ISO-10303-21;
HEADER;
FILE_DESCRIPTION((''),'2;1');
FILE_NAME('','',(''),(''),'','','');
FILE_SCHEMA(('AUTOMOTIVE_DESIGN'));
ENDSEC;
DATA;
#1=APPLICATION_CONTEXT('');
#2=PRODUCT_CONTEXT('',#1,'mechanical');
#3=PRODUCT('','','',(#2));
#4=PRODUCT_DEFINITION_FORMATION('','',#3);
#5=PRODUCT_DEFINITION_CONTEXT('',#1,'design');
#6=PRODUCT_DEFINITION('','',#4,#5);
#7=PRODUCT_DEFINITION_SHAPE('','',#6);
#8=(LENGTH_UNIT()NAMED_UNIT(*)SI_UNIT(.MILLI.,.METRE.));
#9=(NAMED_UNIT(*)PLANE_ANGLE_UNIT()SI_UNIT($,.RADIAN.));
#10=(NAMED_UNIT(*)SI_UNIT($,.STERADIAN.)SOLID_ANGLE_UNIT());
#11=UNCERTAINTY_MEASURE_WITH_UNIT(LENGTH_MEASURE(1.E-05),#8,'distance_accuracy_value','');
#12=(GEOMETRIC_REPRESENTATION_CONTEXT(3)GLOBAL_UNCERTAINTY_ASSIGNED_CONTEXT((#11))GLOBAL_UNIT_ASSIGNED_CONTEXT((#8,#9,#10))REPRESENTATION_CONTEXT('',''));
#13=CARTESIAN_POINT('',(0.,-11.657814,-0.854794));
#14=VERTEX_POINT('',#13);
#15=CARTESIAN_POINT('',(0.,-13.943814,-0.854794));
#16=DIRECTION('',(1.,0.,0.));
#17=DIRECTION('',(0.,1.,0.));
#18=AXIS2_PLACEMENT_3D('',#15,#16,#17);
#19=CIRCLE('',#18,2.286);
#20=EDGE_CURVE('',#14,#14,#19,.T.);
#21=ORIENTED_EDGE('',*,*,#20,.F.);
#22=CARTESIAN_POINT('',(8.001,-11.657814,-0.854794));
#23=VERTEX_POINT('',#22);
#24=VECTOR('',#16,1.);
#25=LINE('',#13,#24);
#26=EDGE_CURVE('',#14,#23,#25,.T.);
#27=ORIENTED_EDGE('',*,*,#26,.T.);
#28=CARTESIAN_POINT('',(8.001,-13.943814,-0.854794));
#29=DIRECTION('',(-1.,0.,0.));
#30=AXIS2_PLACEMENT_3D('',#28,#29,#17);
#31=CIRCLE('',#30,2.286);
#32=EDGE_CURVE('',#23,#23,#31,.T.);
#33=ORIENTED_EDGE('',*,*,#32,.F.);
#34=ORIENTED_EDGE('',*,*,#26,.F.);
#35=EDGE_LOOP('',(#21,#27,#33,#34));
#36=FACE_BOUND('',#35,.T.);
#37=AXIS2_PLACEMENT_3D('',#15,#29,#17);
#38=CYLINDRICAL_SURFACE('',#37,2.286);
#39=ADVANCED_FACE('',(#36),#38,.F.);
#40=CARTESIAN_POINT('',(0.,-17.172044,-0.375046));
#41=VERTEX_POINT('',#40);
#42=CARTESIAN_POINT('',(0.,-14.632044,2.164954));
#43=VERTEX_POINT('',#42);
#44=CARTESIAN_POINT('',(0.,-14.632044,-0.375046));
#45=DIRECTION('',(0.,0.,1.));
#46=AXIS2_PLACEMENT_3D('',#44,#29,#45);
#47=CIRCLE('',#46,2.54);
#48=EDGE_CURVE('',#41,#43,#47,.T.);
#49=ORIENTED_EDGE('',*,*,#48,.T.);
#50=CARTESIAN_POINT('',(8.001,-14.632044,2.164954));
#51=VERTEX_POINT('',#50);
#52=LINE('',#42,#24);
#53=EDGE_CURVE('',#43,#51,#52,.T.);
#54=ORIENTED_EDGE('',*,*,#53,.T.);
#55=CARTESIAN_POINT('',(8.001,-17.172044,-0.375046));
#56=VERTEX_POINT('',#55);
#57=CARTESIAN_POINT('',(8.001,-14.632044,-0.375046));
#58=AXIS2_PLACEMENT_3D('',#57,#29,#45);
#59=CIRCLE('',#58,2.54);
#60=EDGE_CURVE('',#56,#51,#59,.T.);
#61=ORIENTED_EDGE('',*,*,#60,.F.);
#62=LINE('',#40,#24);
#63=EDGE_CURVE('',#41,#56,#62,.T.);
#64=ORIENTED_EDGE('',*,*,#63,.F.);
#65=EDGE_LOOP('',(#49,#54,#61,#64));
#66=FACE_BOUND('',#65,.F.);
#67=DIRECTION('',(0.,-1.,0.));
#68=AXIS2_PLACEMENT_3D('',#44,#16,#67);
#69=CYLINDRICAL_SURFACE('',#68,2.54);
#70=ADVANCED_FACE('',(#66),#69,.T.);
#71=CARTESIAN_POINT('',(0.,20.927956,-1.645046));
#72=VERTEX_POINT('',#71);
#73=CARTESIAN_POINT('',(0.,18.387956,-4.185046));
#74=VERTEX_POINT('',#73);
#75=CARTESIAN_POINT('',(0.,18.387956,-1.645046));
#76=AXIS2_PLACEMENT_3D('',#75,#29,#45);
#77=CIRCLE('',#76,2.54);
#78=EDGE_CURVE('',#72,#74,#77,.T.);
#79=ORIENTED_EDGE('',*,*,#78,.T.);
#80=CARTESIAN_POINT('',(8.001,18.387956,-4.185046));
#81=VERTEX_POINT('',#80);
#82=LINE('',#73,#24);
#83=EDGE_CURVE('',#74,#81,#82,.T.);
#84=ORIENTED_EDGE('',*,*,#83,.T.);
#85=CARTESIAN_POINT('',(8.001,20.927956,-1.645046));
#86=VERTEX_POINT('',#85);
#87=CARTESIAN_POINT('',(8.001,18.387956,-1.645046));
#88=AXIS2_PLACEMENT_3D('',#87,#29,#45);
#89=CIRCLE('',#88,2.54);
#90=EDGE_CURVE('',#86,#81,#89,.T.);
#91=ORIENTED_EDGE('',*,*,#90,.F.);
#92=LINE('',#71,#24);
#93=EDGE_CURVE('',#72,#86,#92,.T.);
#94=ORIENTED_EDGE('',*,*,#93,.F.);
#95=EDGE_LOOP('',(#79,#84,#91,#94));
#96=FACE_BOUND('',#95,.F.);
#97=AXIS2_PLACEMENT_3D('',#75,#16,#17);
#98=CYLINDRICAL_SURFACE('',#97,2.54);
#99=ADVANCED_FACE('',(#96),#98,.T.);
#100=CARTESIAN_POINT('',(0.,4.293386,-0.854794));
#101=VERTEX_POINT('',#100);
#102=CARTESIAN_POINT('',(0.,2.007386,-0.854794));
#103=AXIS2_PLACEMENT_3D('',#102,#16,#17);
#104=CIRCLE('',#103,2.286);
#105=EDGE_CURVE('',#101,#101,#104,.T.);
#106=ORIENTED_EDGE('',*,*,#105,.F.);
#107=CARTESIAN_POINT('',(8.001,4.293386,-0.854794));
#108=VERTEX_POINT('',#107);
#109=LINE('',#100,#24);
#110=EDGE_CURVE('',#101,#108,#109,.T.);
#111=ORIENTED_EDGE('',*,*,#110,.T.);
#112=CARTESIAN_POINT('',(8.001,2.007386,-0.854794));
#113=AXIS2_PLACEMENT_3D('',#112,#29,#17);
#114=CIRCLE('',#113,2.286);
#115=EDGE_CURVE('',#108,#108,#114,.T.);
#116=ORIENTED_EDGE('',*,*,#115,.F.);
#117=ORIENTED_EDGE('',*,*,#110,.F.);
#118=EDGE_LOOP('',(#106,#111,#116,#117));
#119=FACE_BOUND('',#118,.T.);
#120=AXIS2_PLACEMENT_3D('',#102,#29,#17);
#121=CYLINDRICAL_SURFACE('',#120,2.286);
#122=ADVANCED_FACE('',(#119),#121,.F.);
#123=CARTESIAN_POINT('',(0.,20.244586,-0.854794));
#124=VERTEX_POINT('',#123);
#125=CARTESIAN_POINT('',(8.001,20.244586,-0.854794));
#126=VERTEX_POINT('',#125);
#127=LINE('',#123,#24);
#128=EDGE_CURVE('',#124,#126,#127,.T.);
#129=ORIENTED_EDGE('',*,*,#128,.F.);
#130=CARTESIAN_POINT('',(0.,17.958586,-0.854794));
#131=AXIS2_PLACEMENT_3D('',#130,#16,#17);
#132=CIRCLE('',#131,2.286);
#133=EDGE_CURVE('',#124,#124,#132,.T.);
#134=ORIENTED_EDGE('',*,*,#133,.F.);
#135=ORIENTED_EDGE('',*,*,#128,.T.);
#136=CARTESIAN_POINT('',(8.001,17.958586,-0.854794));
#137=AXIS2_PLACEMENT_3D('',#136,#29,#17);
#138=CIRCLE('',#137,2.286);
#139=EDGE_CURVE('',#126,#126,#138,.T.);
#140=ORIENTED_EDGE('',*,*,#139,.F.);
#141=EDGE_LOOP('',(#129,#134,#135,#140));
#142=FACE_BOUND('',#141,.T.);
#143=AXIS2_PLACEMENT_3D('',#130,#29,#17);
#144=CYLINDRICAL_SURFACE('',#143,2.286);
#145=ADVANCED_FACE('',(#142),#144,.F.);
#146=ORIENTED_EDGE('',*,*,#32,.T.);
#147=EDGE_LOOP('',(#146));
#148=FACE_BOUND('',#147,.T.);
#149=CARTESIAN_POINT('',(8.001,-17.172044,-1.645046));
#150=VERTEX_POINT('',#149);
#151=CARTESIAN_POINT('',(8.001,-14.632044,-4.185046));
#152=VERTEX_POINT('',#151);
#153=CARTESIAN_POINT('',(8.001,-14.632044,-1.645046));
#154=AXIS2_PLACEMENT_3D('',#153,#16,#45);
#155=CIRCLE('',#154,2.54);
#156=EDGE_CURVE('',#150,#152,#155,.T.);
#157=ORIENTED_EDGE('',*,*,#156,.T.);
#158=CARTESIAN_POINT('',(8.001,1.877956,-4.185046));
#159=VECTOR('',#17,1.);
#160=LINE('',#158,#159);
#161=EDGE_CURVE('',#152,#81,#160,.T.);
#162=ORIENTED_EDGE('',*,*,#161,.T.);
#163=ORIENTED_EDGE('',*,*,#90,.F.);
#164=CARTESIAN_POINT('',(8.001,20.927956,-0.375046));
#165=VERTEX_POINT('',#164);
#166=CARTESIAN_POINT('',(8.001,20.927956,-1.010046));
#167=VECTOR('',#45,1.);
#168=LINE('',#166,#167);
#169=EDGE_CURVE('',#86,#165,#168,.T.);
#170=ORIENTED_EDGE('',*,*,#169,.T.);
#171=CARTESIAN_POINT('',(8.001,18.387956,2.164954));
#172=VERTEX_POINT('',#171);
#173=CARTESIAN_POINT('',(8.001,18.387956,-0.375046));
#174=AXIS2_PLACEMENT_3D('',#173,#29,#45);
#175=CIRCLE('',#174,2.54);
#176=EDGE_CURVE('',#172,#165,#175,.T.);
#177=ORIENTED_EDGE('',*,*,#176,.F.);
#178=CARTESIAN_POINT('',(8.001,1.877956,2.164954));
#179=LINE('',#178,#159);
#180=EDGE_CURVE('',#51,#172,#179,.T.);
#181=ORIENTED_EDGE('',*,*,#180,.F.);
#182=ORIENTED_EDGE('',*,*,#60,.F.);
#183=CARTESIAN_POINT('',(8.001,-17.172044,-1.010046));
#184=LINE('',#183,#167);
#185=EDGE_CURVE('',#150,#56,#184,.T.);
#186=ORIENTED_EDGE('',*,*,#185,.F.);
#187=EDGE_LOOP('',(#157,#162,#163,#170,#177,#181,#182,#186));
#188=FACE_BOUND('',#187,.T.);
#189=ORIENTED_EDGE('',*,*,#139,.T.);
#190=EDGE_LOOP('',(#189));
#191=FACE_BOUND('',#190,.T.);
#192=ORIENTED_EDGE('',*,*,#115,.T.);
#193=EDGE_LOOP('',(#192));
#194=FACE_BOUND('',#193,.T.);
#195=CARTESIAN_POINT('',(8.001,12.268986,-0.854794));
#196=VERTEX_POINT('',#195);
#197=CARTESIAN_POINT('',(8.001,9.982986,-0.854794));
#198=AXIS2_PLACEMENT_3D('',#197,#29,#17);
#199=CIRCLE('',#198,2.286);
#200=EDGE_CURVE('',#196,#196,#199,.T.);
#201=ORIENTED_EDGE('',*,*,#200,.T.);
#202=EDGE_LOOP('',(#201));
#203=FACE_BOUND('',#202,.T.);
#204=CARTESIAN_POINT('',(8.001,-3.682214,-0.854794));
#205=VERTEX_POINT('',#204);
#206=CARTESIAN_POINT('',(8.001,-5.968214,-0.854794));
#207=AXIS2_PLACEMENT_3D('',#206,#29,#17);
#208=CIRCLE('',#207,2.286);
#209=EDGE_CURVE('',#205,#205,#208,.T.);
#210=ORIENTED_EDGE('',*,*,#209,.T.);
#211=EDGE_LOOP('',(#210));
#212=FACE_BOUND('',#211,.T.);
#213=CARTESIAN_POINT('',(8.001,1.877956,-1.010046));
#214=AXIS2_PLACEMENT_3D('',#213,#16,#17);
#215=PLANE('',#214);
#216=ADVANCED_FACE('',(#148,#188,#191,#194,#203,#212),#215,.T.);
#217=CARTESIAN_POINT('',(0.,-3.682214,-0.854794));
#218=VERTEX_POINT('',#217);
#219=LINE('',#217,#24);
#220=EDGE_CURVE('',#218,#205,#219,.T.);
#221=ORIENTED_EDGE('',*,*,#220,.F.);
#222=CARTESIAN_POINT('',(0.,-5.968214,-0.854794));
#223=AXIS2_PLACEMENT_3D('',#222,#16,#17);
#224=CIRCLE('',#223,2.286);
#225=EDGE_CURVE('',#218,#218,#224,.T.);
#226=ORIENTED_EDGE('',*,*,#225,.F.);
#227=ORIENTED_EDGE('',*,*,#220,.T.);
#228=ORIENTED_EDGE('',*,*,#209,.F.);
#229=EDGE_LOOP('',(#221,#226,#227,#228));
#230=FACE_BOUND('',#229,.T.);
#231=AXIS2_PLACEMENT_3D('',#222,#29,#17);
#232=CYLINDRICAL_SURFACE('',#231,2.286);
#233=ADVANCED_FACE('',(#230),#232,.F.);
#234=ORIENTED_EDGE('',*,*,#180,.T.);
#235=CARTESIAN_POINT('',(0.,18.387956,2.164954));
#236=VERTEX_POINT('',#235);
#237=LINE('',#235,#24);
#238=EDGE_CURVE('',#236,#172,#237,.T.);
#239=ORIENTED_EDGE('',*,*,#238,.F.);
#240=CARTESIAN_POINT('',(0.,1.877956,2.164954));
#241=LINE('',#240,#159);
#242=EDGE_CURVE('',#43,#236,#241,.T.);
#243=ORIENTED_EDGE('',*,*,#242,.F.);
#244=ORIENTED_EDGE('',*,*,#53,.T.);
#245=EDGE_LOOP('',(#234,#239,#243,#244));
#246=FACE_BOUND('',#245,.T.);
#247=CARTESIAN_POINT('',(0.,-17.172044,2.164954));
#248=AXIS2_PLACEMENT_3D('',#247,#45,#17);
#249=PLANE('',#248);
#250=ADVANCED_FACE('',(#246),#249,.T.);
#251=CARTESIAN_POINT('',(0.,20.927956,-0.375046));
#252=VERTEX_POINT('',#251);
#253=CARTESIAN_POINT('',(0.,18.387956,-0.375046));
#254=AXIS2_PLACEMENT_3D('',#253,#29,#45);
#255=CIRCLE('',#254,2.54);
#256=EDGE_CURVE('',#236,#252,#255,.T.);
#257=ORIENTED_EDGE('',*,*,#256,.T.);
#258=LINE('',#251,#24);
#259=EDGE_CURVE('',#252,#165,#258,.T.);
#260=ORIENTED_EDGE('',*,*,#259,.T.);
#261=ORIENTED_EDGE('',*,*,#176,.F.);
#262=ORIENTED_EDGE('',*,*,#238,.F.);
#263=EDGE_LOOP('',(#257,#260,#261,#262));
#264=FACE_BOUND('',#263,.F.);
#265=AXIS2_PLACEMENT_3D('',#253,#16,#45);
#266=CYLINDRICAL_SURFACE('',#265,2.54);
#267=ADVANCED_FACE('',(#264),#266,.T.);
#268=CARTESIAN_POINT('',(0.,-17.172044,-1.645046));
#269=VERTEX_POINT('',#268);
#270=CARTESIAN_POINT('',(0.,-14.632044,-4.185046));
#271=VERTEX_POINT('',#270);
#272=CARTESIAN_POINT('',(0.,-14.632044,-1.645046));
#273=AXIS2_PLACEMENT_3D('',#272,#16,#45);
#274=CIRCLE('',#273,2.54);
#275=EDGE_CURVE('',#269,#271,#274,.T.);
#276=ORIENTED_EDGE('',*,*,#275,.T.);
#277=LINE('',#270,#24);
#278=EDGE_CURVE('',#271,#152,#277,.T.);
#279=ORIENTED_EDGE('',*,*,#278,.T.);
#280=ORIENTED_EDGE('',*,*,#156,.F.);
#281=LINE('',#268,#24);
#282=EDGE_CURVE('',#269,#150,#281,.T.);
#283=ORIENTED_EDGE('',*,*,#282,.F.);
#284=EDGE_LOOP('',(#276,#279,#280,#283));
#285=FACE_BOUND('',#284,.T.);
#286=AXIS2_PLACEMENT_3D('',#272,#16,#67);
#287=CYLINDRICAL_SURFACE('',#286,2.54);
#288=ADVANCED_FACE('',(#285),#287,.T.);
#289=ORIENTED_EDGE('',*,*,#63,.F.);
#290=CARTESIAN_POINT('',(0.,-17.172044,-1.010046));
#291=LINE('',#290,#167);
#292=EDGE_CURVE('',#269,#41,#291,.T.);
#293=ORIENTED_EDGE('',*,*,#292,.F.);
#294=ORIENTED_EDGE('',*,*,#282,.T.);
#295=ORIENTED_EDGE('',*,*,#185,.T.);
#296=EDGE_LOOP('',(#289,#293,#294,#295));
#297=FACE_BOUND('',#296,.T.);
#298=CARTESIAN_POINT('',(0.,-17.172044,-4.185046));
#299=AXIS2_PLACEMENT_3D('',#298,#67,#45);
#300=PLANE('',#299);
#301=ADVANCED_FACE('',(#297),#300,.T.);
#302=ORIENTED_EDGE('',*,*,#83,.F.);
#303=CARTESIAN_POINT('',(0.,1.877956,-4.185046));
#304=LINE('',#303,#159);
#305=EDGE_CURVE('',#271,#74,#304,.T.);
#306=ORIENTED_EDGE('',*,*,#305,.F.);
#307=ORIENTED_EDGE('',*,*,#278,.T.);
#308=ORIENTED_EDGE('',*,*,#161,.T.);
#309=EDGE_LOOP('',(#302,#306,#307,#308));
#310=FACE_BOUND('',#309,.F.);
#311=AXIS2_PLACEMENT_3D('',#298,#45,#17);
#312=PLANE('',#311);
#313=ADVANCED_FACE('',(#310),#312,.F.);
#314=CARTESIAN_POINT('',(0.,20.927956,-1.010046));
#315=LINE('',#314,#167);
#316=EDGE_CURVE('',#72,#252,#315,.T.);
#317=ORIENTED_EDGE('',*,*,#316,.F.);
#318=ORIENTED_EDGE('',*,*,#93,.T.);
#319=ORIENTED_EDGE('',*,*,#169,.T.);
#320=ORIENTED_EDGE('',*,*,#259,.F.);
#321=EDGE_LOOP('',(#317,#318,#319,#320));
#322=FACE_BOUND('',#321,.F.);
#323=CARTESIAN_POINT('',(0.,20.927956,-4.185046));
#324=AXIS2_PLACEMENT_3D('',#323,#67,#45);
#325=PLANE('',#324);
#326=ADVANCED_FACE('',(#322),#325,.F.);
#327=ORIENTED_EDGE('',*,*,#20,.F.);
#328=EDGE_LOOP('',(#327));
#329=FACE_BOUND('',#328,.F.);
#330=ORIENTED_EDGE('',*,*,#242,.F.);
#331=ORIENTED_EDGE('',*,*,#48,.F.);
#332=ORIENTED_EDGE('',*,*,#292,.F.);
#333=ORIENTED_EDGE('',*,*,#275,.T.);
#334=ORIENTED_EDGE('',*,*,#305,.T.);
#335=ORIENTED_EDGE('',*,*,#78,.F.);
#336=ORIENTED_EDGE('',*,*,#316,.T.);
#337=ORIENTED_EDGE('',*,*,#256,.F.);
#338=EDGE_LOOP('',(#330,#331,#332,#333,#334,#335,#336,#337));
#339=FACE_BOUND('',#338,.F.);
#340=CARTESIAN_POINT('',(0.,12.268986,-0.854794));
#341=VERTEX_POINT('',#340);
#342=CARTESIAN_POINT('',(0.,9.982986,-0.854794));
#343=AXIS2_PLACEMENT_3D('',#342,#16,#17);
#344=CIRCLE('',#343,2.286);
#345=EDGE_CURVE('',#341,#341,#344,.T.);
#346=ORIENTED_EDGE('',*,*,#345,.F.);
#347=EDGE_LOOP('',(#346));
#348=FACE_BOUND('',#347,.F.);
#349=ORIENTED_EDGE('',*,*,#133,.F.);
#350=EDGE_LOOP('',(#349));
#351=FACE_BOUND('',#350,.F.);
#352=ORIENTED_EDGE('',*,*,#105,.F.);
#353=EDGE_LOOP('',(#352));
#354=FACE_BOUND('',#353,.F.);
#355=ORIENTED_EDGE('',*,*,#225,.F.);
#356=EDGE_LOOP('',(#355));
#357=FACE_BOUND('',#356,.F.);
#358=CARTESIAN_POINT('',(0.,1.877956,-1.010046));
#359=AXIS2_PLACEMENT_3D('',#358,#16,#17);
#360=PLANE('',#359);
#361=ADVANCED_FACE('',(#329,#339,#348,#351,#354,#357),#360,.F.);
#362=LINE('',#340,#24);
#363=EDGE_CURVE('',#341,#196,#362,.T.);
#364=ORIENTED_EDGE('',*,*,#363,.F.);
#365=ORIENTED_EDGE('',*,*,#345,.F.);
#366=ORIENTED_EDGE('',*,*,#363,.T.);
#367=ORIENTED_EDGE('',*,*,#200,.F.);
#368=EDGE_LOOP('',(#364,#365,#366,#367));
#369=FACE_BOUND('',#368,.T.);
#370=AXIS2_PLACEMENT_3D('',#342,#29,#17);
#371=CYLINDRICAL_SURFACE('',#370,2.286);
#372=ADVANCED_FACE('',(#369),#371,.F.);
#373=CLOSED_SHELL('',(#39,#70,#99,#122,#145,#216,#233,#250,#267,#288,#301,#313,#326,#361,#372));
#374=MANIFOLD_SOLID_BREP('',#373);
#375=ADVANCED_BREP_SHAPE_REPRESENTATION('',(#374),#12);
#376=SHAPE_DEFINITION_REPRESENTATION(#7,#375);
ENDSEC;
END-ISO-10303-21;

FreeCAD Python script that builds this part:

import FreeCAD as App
import Part
import Sketcher
Q = App.Units.Quantity


def edges_at(feature, points):
    """Names of the edges that pass closest to the given points."""
    edges = feature.Shape.Edges
    near = lambda p: min(range(len(edges)), key=lambda i: edges[i].distToShape(Part.Vertex(*p))[0])
    return sorted({f"Edge{near(p) + 1}" for p in points})

doc = App.newDocument("Part")
body = doc.addObject("PartDesign::Body", "Body")

# Sketch on YZ plane
sketch1 = body.newObject("Sketcher::SketchObject", "Sketch")
sketch1.AttachmentSupport = (doc.getObject("YZ_Plane"), [""])
sketch1.MapMode = "FlatFace"
sketch1.addGeometry([
    Part.LineSegment(App.Vector(-17.172044, 2.164954, 0), App.Vector(-17.172044, -4.185046, 0)),
    Part.LineSegment(App.Vector(-17.172044, -4.185046, 0), App.Vector(20.927956, -4.185046, 0)),
    Part.LineSegment(App.Vector(20.927956, -4.185046, 0), App.Vector(20.927956, 2.164954, 0)),
    Part.LineSegment(App.Vector(20.927956, 2.164954, 0), App.Vector(-17.172044, 2.164954, 0)),
], False)
sketch1.addConstraint([
    Sketcher.Constraint("Coincident", 0, 2, 1, 1),
    Sketcher.Constraint("Coincident", 1, 2, 2, 1),
    Sketcher.Constraint("Coincident", 2, 2, 3, 1),
    Sketcher.Constraint("Coincident", 3, 2, 0, 1),
    Sketcher.Constraint("Vertical", 0),
    Sketcher.Constraint("Horizontal", 1),
    Sketcher.Constraint("Vertical", 2),
    Sketcher.Constraint("Horizontal", 3),
    Sketcher.Constraint("DistanceX", 1, 1, 1, 2, Q("1.5 in")),
    Sketcher.Constraint("DistanceY", 0, 2, 0, 1, Q("0.25 in")),
    Sketcher.Constraint("DistanceX", 0, 2, -1, 1, Q("17.172044 mm")),
    Sketcher.Constraint("DistanceY", 0, 2, -1, 1, Q("4.185046 mm")),
])
pad1 = body.newObject("PartDesign::Pad", "Pad")
pad1.Profile = sketch1
pad1.Length = Q("0.315 in")

# Sketch on YZ plane
sketch2 = body.newObject("Sketcher::SketchObject", "Sketch001")
sketch2.AttachmentSupport = (doc.getObject("YZ_Plane"), [""])
sketch2.MapMode = "FlatFace"
sketch2.addGeometry([
    Part.Circle(App.Vector(-13.943814, -0.854794, 0), App.Vector(0, 0, 1), 2.286),  # 0
    Part.Circle(App.Vector(-5.968214, -0.854794, 0), App.Vector(0, 0, 1), 2.286),  # 1
    Part.Circle(App.Vector(2.007386, -0.854794, 0), App.Vector(0, 0, 1), 2.286),  # 2
    Part.Circle(App.Vector(9.982986, -0.854794, 0), App.Vector(0, 0, 1), 2.286),  # 3
    Part.Circle(App.Vector(17.958586, -0.854794, 0), App.Vector(0, 0, 1), 2.286),  # 4
], False)
sketch2.addConstraint([
    Sketcher.Constraint("Equal", 0, 1),
    Sketcher.Constraint("Equal", 1, 2),
    Sketcher.Constraint("Equal", 2, 3),
    Sketcher.Constraint("Equal", 3, 4),
    Sketcher.Constraint("Horizontal", 0, 3, 1, 3),
    Sketcher.Constraint("Horizontal", 1, 3, 2, 3),
    Sketcher.Constraint("Horizontal", 2, 3, 3, 3),
    Sketcher.Constraint("Horizontal", 3, 3, 4, 3),
    Sketcher.Constraint("Diameter", 0, Q("0.18 in")),
    Sketcher.Constraint("DistanceX", 0, 3, 1, 3, Q("0.314 in")),
    Sketcher.Constraint("DistanceX", 1, 3, 2, 3, Q("0.314 in")),
    Sketcher.Constraint("DistanceX", 2, 3, 3, 3, Q("0.314 in")),
    Sketcher.Constraint("DistanceX", 3, 3, 4, 3, Q("0.314 in")),
    Sketcher.Constraint("DistanceX", 0, 3, -1, 1, Q("13.943814 mm")),
    Sketcher.Constraint("DistanceY", 0, 3, -1, 1, Q("0.854794 mm")),
])
pocket1 = body.newObject("PartDesign::Pocket", "Pocket")
pocket1.Profile = sketch2
pocket1.Length = Q("1 in")
pocket1.Reversed = True
doc.recompute()

fillet = body.newObject("PartDesign::Fillet", "Fillet")
fillet.Base = (pocket1, edges_at(pocket1, [(4, -17.172, 2.165)]))
fillet.Radius = Q("0.1 in")
doc.recompute()

fillet2 = body.newObject("PartDesign::Fillet", "Fillet001")
fillet2.Base = (fillet, edges_at(fillet, [(4, -17.172, -4.185)]))
fillet2.Radius = Q("0.1 in")
doc.recompute()

fillet3 = body.newObject("PartDesign::Fillet", "Fillet002")
fillet3.Base = (fillet2, edges_at(fillet2, [(4, 20.928, 2.165)]))
fillet3.Radius = Q("0.1 in")
doc.recompute()

fillet4 = body.newObject("PartDesign::Fillet", "Fillet003")
fillet4.Base = (fillet3, edges_at(fillet3, [(4, 20.928, -4.185)]))
fillet4.Radius = Q("0.1 in")

doc.recompute()
